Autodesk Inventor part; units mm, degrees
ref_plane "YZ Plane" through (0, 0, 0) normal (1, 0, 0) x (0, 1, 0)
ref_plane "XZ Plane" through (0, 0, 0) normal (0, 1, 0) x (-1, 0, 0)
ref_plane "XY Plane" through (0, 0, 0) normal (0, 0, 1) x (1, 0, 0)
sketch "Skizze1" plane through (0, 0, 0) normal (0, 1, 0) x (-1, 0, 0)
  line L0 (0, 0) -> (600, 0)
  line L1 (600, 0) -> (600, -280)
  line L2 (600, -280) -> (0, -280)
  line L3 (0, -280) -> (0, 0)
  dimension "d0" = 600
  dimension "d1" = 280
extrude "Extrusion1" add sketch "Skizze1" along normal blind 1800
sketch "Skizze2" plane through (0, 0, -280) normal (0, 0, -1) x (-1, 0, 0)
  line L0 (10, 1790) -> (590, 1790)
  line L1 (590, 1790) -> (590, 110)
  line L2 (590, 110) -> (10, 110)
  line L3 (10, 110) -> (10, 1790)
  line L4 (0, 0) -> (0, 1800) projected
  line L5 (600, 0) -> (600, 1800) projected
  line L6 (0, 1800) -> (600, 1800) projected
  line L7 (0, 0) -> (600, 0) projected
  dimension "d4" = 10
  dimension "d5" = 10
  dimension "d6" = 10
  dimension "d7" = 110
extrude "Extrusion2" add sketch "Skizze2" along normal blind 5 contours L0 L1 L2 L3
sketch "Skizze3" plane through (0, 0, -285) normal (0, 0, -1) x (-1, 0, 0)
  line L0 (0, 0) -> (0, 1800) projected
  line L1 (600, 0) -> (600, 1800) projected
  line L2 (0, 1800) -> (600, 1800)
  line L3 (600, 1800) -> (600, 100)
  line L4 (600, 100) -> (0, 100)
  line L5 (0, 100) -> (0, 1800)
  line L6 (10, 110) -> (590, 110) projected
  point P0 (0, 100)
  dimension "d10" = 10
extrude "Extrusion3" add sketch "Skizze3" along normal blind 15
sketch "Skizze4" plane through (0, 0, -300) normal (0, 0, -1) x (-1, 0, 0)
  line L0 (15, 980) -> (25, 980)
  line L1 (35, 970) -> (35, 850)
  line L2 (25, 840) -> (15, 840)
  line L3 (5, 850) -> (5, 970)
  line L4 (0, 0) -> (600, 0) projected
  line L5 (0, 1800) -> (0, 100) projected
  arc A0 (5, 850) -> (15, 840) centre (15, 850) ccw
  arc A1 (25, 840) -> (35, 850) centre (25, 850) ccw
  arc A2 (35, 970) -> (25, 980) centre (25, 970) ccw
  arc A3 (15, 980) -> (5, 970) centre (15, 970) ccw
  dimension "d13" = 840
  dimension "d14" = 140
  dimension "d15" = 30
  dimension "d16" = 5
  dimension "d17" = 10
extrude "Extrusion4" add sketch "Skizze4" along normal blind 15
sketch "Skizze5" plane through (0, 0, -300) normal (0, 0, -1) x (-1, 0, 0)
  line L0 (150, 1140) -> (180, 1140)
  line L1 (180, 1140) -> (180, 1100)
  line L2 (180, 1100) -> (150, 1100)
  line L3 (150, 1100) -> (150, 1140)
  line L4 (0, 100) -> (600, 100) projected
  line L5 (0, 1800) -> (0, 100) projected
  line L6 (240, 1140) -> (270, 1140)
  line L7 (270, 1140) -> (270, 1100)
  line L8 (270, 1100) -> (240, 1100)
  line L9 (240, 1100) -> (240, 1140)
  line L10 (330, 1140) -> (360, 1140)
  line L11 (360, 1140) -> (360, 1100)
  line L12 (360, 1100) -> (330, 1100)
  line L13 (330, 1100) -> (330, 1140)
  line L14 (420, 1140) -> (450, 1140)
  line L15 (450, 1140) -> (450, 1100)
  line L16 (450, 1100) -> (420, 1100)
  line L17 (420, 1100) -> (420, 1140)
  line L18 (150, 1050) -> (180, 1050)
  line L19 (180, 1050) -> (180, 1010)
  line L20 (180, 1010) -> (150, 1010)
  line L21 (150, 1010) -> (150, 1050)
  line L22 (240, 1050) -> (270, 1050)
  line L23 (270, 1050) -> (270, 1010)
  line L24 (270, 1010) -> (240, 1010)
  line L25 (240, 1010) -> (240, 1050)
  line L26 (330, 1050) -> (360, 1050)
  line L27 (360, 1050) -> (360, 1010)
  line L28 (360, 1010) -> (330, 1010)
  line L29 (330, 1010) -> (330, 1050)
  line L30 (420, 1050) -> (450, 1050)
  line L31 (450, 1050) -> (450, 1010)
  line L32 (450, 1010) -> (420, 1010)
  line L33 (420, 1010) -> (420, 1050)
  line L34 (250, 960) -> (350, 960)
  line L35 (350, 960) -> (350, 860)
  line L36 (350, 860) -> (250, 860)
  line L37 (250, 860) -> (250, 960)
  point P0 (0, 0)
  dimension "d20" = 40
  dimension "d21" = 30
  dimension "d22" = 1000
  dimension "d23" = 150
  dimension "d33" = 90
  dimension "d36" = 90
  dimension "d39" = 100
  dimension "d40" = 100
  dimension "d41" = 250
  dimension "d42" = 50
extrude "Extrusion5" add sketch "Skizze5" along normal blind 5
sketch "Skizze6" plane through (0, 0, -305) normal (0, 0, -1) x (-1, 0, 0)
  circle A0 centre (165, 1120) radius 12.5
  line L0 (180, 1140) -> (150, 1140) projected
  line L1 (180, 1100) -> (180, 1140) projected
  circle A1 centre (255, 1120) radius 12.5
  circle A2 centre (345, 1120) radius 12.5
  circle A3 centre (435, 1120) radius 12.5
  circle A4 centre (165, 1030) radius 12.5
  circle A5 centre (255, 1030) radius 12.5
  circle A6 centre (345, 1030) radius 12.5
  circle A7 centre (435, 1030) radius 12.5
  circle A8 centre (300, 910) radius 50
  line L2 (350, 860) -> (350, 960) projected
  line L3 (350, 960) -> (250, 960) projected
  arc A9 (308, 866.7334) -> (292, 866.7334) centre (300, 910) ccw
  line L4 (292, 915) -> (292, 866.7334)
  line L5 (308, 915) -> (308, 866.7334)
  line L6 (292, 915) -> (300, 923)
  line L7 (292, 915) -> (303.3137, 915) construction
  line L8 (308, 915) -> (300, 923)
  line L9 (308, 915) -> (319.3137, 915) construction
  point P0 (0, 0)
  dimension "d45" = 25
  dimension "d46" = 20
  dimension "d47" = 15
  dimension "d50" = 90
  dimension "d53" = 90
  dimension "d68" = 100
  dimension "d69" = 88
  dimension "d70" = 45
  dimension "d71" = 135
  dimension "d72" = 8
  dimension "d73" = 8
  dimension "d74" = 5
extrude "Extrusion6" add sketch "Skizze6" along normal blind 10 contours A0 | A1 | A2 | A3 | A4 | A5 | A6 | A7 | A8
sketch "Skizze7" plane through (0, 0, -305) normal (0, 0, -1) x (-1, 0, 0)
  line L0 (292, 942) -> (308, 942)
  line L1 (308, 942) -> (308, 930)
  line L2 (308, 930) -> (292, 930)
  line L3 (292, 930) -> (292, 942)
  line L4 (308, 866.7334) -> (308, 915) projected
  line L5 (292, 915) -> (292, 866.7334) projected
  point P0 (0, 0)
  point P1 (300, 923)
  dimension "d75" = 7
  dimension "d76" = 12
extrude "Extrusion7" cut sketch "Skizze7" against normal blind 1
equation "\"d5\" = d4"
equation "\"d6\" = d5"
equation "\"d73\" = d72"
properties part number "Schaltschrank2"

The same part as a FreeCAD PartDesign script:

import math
import FreeCAD as App
import Part
import Sketcher
Q = App.Units.Quantity


def add_polygon(sketch, points):
    """Adds a closed chain of lines whose ends are joined by coincident constraints."""
    first, n = sketch.GeometryCount, len(points)
    for a, b in zip(points, points[1:] + points[:1]):
        sketch.addGeometry(Part.LineSegment(App.Vector(*a, 0), App.Vector(*b, 0)), False)
    for i in range(n):
        sketch.addConstraint(Sketcher.Constraint("Coincident", first + i, 2, first + (i + 1) % n, 1))

doc = App.newDocument("Part")
body = doc.addObject("PartDesign::Body", "Body")

# Sketch on XZ plane
sketch1 = doc.addObject("Sketcher::SketchObject", "Sketch")
body.addObject(sketch1)
sketch1.AttachmentSupport = (doc.XZ_Plane, [""])
sketch1.MapMode = "FlatFace"
add_polygon(sketch1, [(-600, 0), (0, 0), (0, -280), (-600, -280)])  # lines 0-3
sketch1.addConstraint(Sketcher.Constraint("Horizontal", 0))
sketch1.addConstraint(Sketcher.Constraint("Vertical", 1))
sketch1.addConstraint(Sketcher.Constraint("Horizontal", 2))
sketch1.addConstraint(Sketcher.Constraint("Vertical", 3))
sketch1.addConstraint(Sketcher.Constraint("Coincident", 0, 2, -1, 1))
sketch1.addConstraint(Sketcher.Constraint("DistanceX", 0, 1, 0, 2, Q("600 mm")))
sketch1.addConstraint(Sketcher.Constraint("DistanceY", 1, 2, 1, 1, Q("280 mm")))
pad1 = doc.addObject("PartDesign::Pad", "Pad")
body.addObject(pad1)
pad1.Profile = sketch1
pad1.Length = 1800
pad1.Reversed = True

# Sketch on XY plane
sketch2 = doc.addObject("Sketcher::SketchObject", "Sketch001")
body.addObject(sketch2)
sketch2.AttachmentSupport = (doc.XY_Plane, [""])
sketch2.MapMode = "FlatFace"
sketch2.AttachmentOffset = App.Placement(App.Vector(0, 0, -280), App.Rotation())
add_polygon(sketch2, [(-590, 1790), (-10, 1790), (-10, 110), (-590, 110)])  # lines 0-3
sketch2.addConstraint(Sketcher.Constraint("Horizontal", 0))
sketch2.addConstraint(Sketcher.Constraint("Vertical", 1))
sketch2.addConstraint(Sketcher.Constraint("Horizontal", 2))
sketch2.addConstraint(Sketcher.Constraint("Vertical", 3))
sketch2.addConstraint(Sketcher.Constraint("DistanceX", 0, 2, -1, 1, Q("10 mm")))
sketch2.addConstraint(Sketcher.Constraint("DistanceY", -1, 1, 1, 2, Q("110 mm")))
sketch2.addConstraint(Sketcher.Constraint("DistanceX", 0, 1, 0, 2, Q("580 mm")))
sketch2.addConstraint(Sketcher.Constraint("DistanceY", 1, 2, 1, 1, Q("1680 mm")))
pad2 = doc.addObject("PartDesign::Pad", "Pad001")
body.addObject(pad2)
pad2.Profile = sketch2
pad2.Length = 5
pad2.Reversed = True

# Sketch on XY plane
sketch3 = doc.addObject("Sketcher::SketchObject", "Sketch002")
body.addObject(sketch3)
sketch3.AttachmentSupport = (doc.XY_Plane, [""])
sketch3.MapMode = "FlatFace"
sketch3.AttachmentOffset = App.Placement(App.Vector(0, 0, -285), App.Rotation())
add_polygon(sketch3, [(0, 1800), (0, 100), (-600, 100), (-600, 1800)])  # lines 0-3
sketch3.addConstraint(Sketcher.Constraint("Vertical", 0))
sketch3.addConstraint(Sketcher.Constraint("Horizontal", 1))
sketch3.addConstraint(Sketcher.Constraint("Vertical", 2))
sketch3.addConstraint(Sketcher.Constraint("Horizontal", 3))
sketch3.addConstraint(Sketcher.Constraint("PointOnObject", 0, 2, -2))
sketch3.addConstraint(Sketcher.Constraint("DistanceX", 1, 2, 1, 1, Q("600 mm")))
sketch3.addConstraint(Sketcher.Constraint("DistanceY", 0, 2, 0, 1, Q("1700 mm")))
sketch3.addConstraint(Sketcher.Constraint("DistanceY", -1, 1, 0, 2, Q("100 mm")))
pad3 = doc.addObject("PartDesign::Pad", "Pad002")
body.addObject(pad3)
pad3.Profile = sketch3
pad3.Length = 15
pad3.Reversed = True

# Sketch on XY plane
sketch4 = doc.addObject("Sketcher::SketchObject", "Sketch003")
body.addObject(sketch4)
sketch4.AttachmentSupport = (doc.XY_Plane, [""])
sketch4.MapMode = "FlatFace"
sketch4.AttachmentOffset = App.Placement(App.Vector(0, 0, -300), App.Rotation())
sketch4.addGeometry(Part.LineSegment(App.Vector(-25, 980, 0), App.Vector(-15, 980, 0)), False)
sketch4.addGeometry(Part.ArcOfCircle(Part.Circle(App.Vector(-15, 970, 0), App.Vector(0, 0, 1), 10), math.radians(0), math.radians(90)), False)
sketch4.addGeometry(Part.LineSegment(App.Vector(-5, 970, 0), App.Vector(-5, 850, 0)), False)
sketch4.addGeometry(Part.ArcOfCircle(Part.Circle(App.Vector(-15, 850, 0), App.Vector(0, 0, 1), 10), math.radians(-90), math.radians(0)), False)
sketch4.addGeometry(Part.LineSegment(App.Vector(-15, 840, 0), App.Vector(-25, 840, 0)), False)
sketch4.addGeometry(Part.ArcOfCircle(Part.Circle(App.Vector(-25, 850, 0), App.Vector(0, 0, 1), 10), math.radians(180), math.radians(270)), False)
sketch4.addGeometry(Part.LineSegment(App.Vector(-35, 850, 0), App.Vector(-35, 970, 0)), False)
sketch4.addGeometry(Part.ArcOfCircle(Part.Circle(App.Vector(-25, 970, 0), App.Vector(0, 0, 1), 10), math.radians(90), math.radians(180)), False)
sketch4.addConstraint(Sketcher.Constraint("Tangent", 0, 2, 1, 2))
sketch4.addConstraint(Sketcher.Constraint("Tangent", 1, 1, 2, 1))
sketch4.addConstraint(Sketcher.Constraint("Tangent", 2, 2, 3, 2))
sketch4.addConstraint(Sketcher.Constraint("Tangent", 3, 1, 4, 1))
sketch4.addConstraint(Sketcher.Constraint("Tangent", 4, 2, 5, 2))
sketch4.addConstraint(Sketcher.Constraint("Tangent", 5, 1, 6, 1))
sketch4.addConstraint(Sketcher.Constraint("Tangent", 6, 2, 7, 2))
sketch4.addConstraint(Sketcher.Constraint("Tangent", 7, 1, 0, 1))
sketch4.addConstraint(Sketcher.Constraint("Horizontal", 0))
sketch4.addConstraint(Sketcher.Constraint("Vertical", 2))
sketch4.addConstraint(Sketcher.Constraint("Horizontal", 4))
sketch4.addConstraint(Sketcher.Constraint("Vertical", 6))
sketch4.addConstraint(Sketcher.Constraint("Equal", 1, 3))
sketch4.addConstraint(Sketcher.Constraint("Equal", 3, 5))
sketch4.addConstraint(Sketcher.Constraint("Equal", 5, 7))
sketch4.addConstraint(Sketcher.Constraint("Radius", 1, Q("10 mm")))
sketch4.addConstraint(Sketcher.Constraint("DistanceX", 0, 1, 0, 2, Q("10 mm")))
sketch4.addConstraint(Sketcher.Constraint("DistanceX", 1, 1, -1, 1, Q("5 mm")))
sketch4.addConstraint(Sketcher.Constraint("DistanceY", -1, 1, 3, 1, Q("840 mm")))
sketch4.addConstraint(Sketcher.Constraint("DistanceY", 2, 2, 2, 1, Q("120 mm")))
pad4 = doc.addObject("PartDesign::Pad", "Pad003")
body.addObject(pad4)
pad4.Profile = sketch4
pad4.Length = 15
pad4.Reversed = True

# Sketch on XY plane
sketch5 = doc.addObject("Sketcher::SketchObject", "Sketch004")
body.addObject(sketch5)
sketch5.AttachmentSupport = (doc.XY_Plane, [""])
sketch5.MapMode = "FlatFace"
sketch5.AttachmentOffset = App.Placement(App.Vector(0, 0, -300), App.Rotation())
add_polygon(sketch5, [(-180, 1140), (-150, 1140), (-150, 1100), (-180, 1100)])  # lines 0-3
add_polygon(sketch5, [(-270, 1140), (-240, 1140), (-240, 1100), (-270, 1100)])  # lines 4-7
add_polygon(sketch5, [(-360, 1140), (-330, 1140), (-330, 1100), (-360, 1100)])  # lines 8-11
add_polygon(sketch5, [(-450, 1140), (-420, 1140), (-420, 1100), (-450, 1100)])  # lines 12-15
add_polygon(sketch5, [(-180, 1050), (-150, 1050), (-150, 1010), (-180, 1010)])  # lines 16-19
add_polygon(sketch5, [(-270, 1050), (-240, 1050), (-240, 1010), (-270, 1010)])  # lines 20-23
add_polygon(sketch5, [(-360, 1050), (-330, 1050), (-330, 1010), (-360, 1010)])  # lines 24-27
add_polygon(sketch5, [(-450, 1050), (-420, 1050), (-420, 1010), (-450, 1010)])  # lines 28-31
add_polygon(sketch5, [(-350, 960), (-250, 960), (-250, 860), (-350, 860)])  # lines 32-35
sketch5.addConstraint(Sketcher.Constraint("Horizontal", 0))
sketch5.addConstraint(Sketcher.Constraint("Vertical", 1))
sketch5.addConstraint(Sketcher.Constraint("Horizontal", 2))
sketch5.addConstraint(Sketcher.Constraint("Vertical", 3))
sketch5.addConstraint(Sketcher.Constraint("Horizontal", 4))
sketch5.addConstraint(Sketcher.Constraint("Vertical", 5))
sketch5.addConstraint(Sketcher.Constraint("Horizontal", 6))
sketch5.addConstraint(Sketcher.Constraint("Vertical", 7))
sketch5.addConstraint(Sketcher.Constraint("Horizontal", 8))
sketch5.addConstraint(Sketcher.Constraint("Vertical", 9))
sketch5.addConstraint(Sketcher.Constraint("Horizontal", 10))
sketch5.addConstraint(Sketcher.Constraint("Vertical", 11))
sketch5.addConstraint(Sketcher.Constraint("Horizontal", 12))
sketch5.addConstraint(Sketcher.Constraint("Vertical", 13))
sketch5.addConstraint(Sketcher.Constraint("Horizontal", 14))
sketch5.addConstraint(Sketcher.Constraint("Vertical", 15))
sketch5.addConstraint(Sketcher.Constraint("Horizontal", 16))
sketch5.addConstraint(Sketcher.Constraint("Vertical", 17))
sketch5.addConstraint(Sketcher.Constraint("Horizontal", 18))
sketch5.addConstraint(Sketcher.Constraint("Vertical", 19))
sketch5.addConstraint(Sketcher.Constraint("Horizontal", 20))
sketch5.addConstraint(Sketcher.Constraint("Vertical", 21))
sketch5.addConstraint(Sketcher.Constraint("Horizontal", 22))
sketch5.addConstraint(Sketcher.Constraint("Vertical", 23))
sketch5.addConstraint(Sketcher.Constraint("Horizontal", 24))
sketch5.addConstraint(Sketcher.Constraint("Vertical", 25))
sketch5.addConstraint(Sketcher.Constraint("Horizontal", 26))
sketch5.addConstraint(Sketcher.Constraint("Vertical", 27))
sketch5.addConstraint(Sketcher.Constraint("Horizontal", 28))
sketch5.addConstraint(Sketcher.Constraint("Vertical", 29))
sketch5.addConstraint(Sketcher.Constraint("Horizontal", 30))
sketch5.addConstraint(Sketcher.Constraint("Vertical", 31))
sketch5.addConstraint(Sketcher.Constraint("Horizontal", 32))
sketch5.addConstraint(Sketcher.Constraint("Vertical", 33))
sketch5.addConstraint(Sketcher.Constraint("Horizontal", 34))
sketch5.addConstraint(Sketcher.Constraint("Vertical", 35))
sketch5.addConstraint(Sketcher.Constraint("Horizontal", 3, 2, 4, 2))
sketch5.addConstraint(Sketcher.Constraint("Horizontal", 2, 2, 5, 2))
sketch5.addConstraint(Sketcher.Constraint("Horizontal", 7, 2, 8, 2))
sketch5.addConstraint(Sketcher.Constraint("Horizontal", 6, 2, 9, 2))
sketch5.addConstraint(Sketcher.Constraint("Horizontal", 11, 2, 12, 2))
sketch5.addConstraint(Sketcher.Constraint("Horizontal", 10, 2, 13, 2))
sketch5.addConstraint(Sketcher.Constraint("Horizontal", 19, 2, 20, 2))
sketch5.addConstraint(Sketcher.Constraint("Horizontal", 18, 2, 21, 2))
sketch5.addConstraint(Sketcher.Constraint("Horizontal", 23, 2, 24, 2))
sketch5.addConstraint(Sketcher.Constraint("Horizontal", 22, 2, 25, 2))
sketch5.addConstraint(Sketcher.Constraint("Horizontal", 27, 2, 28, 2))
sketch5.addConstraint(Sketcher.Constraint("Horizontal", 26, 2, 29, 2))
sketch5.addConstraint(Sketcher.Constraint("Vertical", 1, 2, 16, 2))
sketch5.addConstraint(Sketcher.Constraint("Vertical", 3, 2, 18, 2))
sketch5.addConstraint(Sketcher.Constraint("Vertical", 5, 2, 20, 2))
sketch5.addConstraint(Sketcher.Constraint("Vertical", 7, 2, 22, 2))
sketch5.addConstraint(Sketcher.Constraint("Vertical", 9, 2, 24, 2))
sketch5.addConstraint(Sketcher.Constraint("Vertical", 11, 2, 26, 2))
sketch5.addConstraint(Sketcher.Constraint("Vertical", 13, 2, 28, 2))
sketch5.addConstraint(Sketcher.Constraint("Vertical", 15, 2, 30, 2))
sketch5.addConstraint(Sketcher.Constraint("Equal", 2, 4))
sketch5.addConstraint(Sketcher.Constraint("Equal", 6, 8))
sketch5.addConstraint(Sketcher.Constraint("Equal", 10, 12))
sketch5.addConstraint(Sketcher.Constraint("Equal", 15, 17))
sketch5.addConstraint(Sketcher.Constraint("Equal", 34, 33))
sketch5.addConstraint(Sketcher.Constraint("DistanceX", 0, 1, 0, 2, Q("30 mm")))
sketch5.addConstraint(Sketcher.Constraint("DistanceX", 32, 1, 32, 2, Q("100 mm")))
sketch5.addConstraint(Sketcher.Constraint("DistanceY", 1, 2, 1, 1, Q("40 mm")))
sketch5.addConstraint(Sketcher.Constraint("DistanceX", 0, 2, -1, 1, Q("150 mm")))
sketch5.addConstraint(Sketcher.Constraint("DistanceX", 32, 2, -1, 1, Q("250 mm")))
sketch5.addConstraint(Sketcher.Constraint("DistanceX", 4, 2, 0, 2, Q("90 mm")))
sketch5.addConstraint(Sketcher.Constraint("DistanceX", 8, 2, 4, 2, Q("90 mm")))
sketch5.addConstraint(Sketcher.Constraint("DistanceX", 12, 2, 8, 2, Q("90 mm")))
sketch5.addConstraint(Sketcher.Constraint("DistanceY", 16, 2, 1, 2, Q("50 mm")))
sketch5.addConstraint(Sketcher.Constraint("DistanceY", 32, 2, 21, 2, Q("50 mm")))
sketch5.addConstraint(Sketcher.Constraint("DistanceY", -1, 1, 0, 2, Q("1140 mm")))
pad5 = doc.addObject("PartDesign::Pad", "Pad004")
body.addObject(pad5)
pad5.Profile = sketch5
pad5.Length = 5
pad5.Reversed = True

# Sketch on XY plane
sketch6 = doc.addObject("Sketcher::SketchObject", "Sketch005")
body.addObject(sketch6)
sketch6.AttachmentSupport = (doc.XY_Plane, [""])
sketch6.MapMode = "FlatFace"
sketch6.AttachmentOffset = App.Placement(App.Vector(0, 0, -305), App.Rotation())
sketch6.addGeometry(Part.Circle(App.Vector(-165, 1120, 0), App.Vector(0, 0, 1), 12), False)
sketch6.addGeometry(Part.Circle(App.Vector(-255, 1120, 0), App.Vector(0, 0, 1), 12), False)
sketch6.addGeometry(Part.Circle(App.Vector(-345, 1120, 0), App.Vector(0, 0, 1), 12), False)
sketch6.addGeometry(Part.Circle(App.Vector(-435, 1120, 0), App.Vector(0, 0, 1), 12), False)
sketch6.addGeometry(Part.Circle(App.Vector(-165, 1030, 0), App.Vector(0, 0, 1), 12), False)
sketch6.addGeometry(Part.Circle(App.Vector(-255, 1030, 0), App.Vector(0, 0, 1), 12), False)
sketch6.addGeometry(Part.Circle(App.Vector(-345, 1030, 0), App.Vector(0, 0, 1), 12), False)
sketch6.addGeometry(Part.Circle(App.Vector(-435, 1030, 0), App.Vector(0, 0, 1), 12), False)
sketch6.addGeometry(Part.Circle(App.Vector(-300, 910, 0), App.Vector(0, 0, 1), 50), False)
sketch6.addGeometry(Part.ArcOfCircle(Part.Circle(App.Vector(-300, 910, 0), App.Vector(0, 0, 1), 44), math.radians(-80), math.radians(260)), False)
sketch6.addGeometry(Part.LineSegment(App.Vector(-308, 867, 0), App.Vector(-308, 915, 0)), False)
sketch6.addGeometry(Part.LineSegment(App.Vector(-308, 915, 0), App.Vector(-300, 923, 0)), False)
sketch6.addGeometry(Part.LineSegment(App.Vector(-300, 923, 0), App.Vector(-292, 915, 0)), False)
sketch6.addGeometry(Part.LineSegment(App.Vector(-292, 915, 0), App.Vector(-292, 867, 0)), False)
sketch6.addConstraint(Sketcher.Constraint("Coincident", 9, 2, 10, 1))
sketch6.addConstraint(Sketcher.Constraint("Coincident", 10, 2, 11, 1))
sketch6.addConstraint(Sketcher.Constraint("Coincident", 11, 2, 12, 1))
sketch6.addConstraint(Sketcher.Constraint("Coincident", 12, 2, 13, 1))
sketch6.addConstraint(Sketcher.Constraint("Coincident", 13, 2, 9, 1))
sketch6.addConstraint(Sketcher.Constraint("Vertical", 10))
sketch6.addConstraint(Sketcher.Constraint("Vertical", 13))
sketch6.addConstraint(Sketcher.Constraint("Coincident", 9, 3, 8, 3))
sketch6.addConstraint(Sketcher.Constraint("Equal", 0, 1))
sketch6.addConstraint(Sketcher.Constraint("Equal", 1, 2))
sketch6.addConstraint(Sketcher.Constraint("Equal", 2, 3))
sketch6.addConstraint(Sketcher.Constraint("Equal", 3, 4))
sketch6.addConstraint(Sketcher.Constraint("Equal", 4, 5))
sketch6.addConstraint(Sketcher.Constraint("Equal", 5, 6))
sketch6.addConstraint(Sketcher.Constraint("Equal", 6, 7))
sketch6.addConstraint(Sketcher.Constraint("Perpendicular", 11, 12))
sketch6.addConstraint(Sketcher.Constraint("Horizontal", 0, 3, 1, 3))
sketch6.addConstraint(Sketcher.Constraint("Horizontal", 1, 3, 2, 3))
sketch6.addConstraint(Sketcher.Constraint("Horizontal", 2, 3, 3, 3))
sketch6.addConstraint(Sketcher.Constraint("Horizontal", 4, 3, 5, 3))
sketch6.addConstraint(Sketcher.Constraint("Horizontal", 5, 3, 6, 3))
sketch6.addConstraint(Sketcher.Constraint("Horizontal", 6, 3, 7, 3))
sketch6.addConstraint(Sketcher.Constraint("Horizontal", 10, 2, 12, 2))
sketch6.addConstraint(Sketcher.Constraint("Horizontal", 9, 2, 13, 2))
sketch6.addConstraint(Sketcher.Constraint("Vertical", 0, 3, 4, 3))
sketch6.addConstraint(Sketcher.Constraint("Vertical", 1, 3, 5, 3))
sketch6.addConstraint(Sketcher.Constraint("Vertical", 2, 3, 6, 3))
sketch6.addConstraint(Sketcher.Constraint("Vertical", 3, 3, 7, 3))
sketch6.addConstraint(Sketcher.Constraint("Vertical", 9, 3, 11, 2))
sketch6.addConstraint(Sketcher.Constraint("Diameter", 0, Q("25 mm")))
sketch6.addConstraint(Sketcher.Constraint("Diameter", 8, Q("100 mm")))
sketch6.addConstraint(Sketcher.Constraint("Radius", 9, Q("44 mm")))
sketch6.addConstraint(Sketcher.Constraint("DistanceX", 1, 3, 0, 3, Q("90 mm")))
sketch6.addConstraint(Sketcher.Constraint("DistanceX", 2, 3, 1, 3, Q("90 mm")))
sketch6.addConstraint(Sketcher.Constraint("DistanceX", 3, 3, 2, 3, Q("90 mm")))
sketch6.addConstraint(Sketcher.Constraint("DistanceY", 4, 3, 0, 3, Q("90 mm")))
sketch6.addConstraint(Sketcher.Constraint("DistanceX", 8, 3, 5, 3, Q("45 mm")))
sketch6.addConstraint(Sketcher.Constraint("DistanceX", 9, 2, 8, 3, Q("8 mm")))
sketch6.addConstraint(Sketcher.Constraint("DistanceY", 8, 3, 10, 2, Q("5 mm")))
sketch6.addConstraint(Sketcher.Constraint("DistanceX", 0, 3, -1, 1, Q("165 mm")))
sketch6.addConstraint(Sketcher.Constraint("DistanceY", -1, 1, 0, 3, Q("1120 mm")))
sketch6.addConstraint(Sketcher.Constraint("DistanceY", -1, 1, 8, 3, Q("910 mm")))
pad6 = doc.addObject("PartDesign::Pad", "Pad005")
body.addObject(pad6)
pad6.Profile = sketch6
pad6.Length = 10
pad6.Reversed = True

# Sketch on XY plane
sketch7 = doc.addObject("Sketcher::SketchObject", "Sketch006")
body.addObject(sketch7)
sketch7.AttachmentSupport = (doc.XY_Plane, [""])
sketch7.MapMode = "FlatFace"
sketch7.AttachmentOffset = App.Placement(App.Vector(0, 0, -305), App.Rotation())
add_polygon(sketch7, [(-308, 942), (-292, 942), (-292, 930), (-308, 930)])  # lines 0-3
sketch7.addConstraint(Sketcher.Constraint("Horizontal", 0))
sketch7.addConstraint(Sketcher.Constraint("Vertical", 1))
sketch7.addConstraint(Sketcher.Constraint("Horizontal", 2))
sketch7.addConstraint(Sketcher.Constraint("Vertical", 3))
sketch7.addConstraint(Sketcher.Constraint("DistanceY", 1, 2, 1, 1, Q("12 mm")))
sketch7.addConstraint(Sketcher.Constraint("DistanceX", 0, 1, 0, 2, Q("16 mm")))
sketch7.addConstraint(Sketcher.Constraint("DistanceX", 0, 2, -1, 1, Q("292 mm")))
sketch7.addConstraint(Sketcher.Constraint("DistanceY", -1, 1, 0, 2, Q("942 mm")))
pocket1 = doc.addObject("PartDesign::Pocket", "Pocket")
body.addObject(pocket1)
pocket1.Profile = sketch7
pocket1.Length = 1
pocket1.Reversed = True

doc.recompute()
